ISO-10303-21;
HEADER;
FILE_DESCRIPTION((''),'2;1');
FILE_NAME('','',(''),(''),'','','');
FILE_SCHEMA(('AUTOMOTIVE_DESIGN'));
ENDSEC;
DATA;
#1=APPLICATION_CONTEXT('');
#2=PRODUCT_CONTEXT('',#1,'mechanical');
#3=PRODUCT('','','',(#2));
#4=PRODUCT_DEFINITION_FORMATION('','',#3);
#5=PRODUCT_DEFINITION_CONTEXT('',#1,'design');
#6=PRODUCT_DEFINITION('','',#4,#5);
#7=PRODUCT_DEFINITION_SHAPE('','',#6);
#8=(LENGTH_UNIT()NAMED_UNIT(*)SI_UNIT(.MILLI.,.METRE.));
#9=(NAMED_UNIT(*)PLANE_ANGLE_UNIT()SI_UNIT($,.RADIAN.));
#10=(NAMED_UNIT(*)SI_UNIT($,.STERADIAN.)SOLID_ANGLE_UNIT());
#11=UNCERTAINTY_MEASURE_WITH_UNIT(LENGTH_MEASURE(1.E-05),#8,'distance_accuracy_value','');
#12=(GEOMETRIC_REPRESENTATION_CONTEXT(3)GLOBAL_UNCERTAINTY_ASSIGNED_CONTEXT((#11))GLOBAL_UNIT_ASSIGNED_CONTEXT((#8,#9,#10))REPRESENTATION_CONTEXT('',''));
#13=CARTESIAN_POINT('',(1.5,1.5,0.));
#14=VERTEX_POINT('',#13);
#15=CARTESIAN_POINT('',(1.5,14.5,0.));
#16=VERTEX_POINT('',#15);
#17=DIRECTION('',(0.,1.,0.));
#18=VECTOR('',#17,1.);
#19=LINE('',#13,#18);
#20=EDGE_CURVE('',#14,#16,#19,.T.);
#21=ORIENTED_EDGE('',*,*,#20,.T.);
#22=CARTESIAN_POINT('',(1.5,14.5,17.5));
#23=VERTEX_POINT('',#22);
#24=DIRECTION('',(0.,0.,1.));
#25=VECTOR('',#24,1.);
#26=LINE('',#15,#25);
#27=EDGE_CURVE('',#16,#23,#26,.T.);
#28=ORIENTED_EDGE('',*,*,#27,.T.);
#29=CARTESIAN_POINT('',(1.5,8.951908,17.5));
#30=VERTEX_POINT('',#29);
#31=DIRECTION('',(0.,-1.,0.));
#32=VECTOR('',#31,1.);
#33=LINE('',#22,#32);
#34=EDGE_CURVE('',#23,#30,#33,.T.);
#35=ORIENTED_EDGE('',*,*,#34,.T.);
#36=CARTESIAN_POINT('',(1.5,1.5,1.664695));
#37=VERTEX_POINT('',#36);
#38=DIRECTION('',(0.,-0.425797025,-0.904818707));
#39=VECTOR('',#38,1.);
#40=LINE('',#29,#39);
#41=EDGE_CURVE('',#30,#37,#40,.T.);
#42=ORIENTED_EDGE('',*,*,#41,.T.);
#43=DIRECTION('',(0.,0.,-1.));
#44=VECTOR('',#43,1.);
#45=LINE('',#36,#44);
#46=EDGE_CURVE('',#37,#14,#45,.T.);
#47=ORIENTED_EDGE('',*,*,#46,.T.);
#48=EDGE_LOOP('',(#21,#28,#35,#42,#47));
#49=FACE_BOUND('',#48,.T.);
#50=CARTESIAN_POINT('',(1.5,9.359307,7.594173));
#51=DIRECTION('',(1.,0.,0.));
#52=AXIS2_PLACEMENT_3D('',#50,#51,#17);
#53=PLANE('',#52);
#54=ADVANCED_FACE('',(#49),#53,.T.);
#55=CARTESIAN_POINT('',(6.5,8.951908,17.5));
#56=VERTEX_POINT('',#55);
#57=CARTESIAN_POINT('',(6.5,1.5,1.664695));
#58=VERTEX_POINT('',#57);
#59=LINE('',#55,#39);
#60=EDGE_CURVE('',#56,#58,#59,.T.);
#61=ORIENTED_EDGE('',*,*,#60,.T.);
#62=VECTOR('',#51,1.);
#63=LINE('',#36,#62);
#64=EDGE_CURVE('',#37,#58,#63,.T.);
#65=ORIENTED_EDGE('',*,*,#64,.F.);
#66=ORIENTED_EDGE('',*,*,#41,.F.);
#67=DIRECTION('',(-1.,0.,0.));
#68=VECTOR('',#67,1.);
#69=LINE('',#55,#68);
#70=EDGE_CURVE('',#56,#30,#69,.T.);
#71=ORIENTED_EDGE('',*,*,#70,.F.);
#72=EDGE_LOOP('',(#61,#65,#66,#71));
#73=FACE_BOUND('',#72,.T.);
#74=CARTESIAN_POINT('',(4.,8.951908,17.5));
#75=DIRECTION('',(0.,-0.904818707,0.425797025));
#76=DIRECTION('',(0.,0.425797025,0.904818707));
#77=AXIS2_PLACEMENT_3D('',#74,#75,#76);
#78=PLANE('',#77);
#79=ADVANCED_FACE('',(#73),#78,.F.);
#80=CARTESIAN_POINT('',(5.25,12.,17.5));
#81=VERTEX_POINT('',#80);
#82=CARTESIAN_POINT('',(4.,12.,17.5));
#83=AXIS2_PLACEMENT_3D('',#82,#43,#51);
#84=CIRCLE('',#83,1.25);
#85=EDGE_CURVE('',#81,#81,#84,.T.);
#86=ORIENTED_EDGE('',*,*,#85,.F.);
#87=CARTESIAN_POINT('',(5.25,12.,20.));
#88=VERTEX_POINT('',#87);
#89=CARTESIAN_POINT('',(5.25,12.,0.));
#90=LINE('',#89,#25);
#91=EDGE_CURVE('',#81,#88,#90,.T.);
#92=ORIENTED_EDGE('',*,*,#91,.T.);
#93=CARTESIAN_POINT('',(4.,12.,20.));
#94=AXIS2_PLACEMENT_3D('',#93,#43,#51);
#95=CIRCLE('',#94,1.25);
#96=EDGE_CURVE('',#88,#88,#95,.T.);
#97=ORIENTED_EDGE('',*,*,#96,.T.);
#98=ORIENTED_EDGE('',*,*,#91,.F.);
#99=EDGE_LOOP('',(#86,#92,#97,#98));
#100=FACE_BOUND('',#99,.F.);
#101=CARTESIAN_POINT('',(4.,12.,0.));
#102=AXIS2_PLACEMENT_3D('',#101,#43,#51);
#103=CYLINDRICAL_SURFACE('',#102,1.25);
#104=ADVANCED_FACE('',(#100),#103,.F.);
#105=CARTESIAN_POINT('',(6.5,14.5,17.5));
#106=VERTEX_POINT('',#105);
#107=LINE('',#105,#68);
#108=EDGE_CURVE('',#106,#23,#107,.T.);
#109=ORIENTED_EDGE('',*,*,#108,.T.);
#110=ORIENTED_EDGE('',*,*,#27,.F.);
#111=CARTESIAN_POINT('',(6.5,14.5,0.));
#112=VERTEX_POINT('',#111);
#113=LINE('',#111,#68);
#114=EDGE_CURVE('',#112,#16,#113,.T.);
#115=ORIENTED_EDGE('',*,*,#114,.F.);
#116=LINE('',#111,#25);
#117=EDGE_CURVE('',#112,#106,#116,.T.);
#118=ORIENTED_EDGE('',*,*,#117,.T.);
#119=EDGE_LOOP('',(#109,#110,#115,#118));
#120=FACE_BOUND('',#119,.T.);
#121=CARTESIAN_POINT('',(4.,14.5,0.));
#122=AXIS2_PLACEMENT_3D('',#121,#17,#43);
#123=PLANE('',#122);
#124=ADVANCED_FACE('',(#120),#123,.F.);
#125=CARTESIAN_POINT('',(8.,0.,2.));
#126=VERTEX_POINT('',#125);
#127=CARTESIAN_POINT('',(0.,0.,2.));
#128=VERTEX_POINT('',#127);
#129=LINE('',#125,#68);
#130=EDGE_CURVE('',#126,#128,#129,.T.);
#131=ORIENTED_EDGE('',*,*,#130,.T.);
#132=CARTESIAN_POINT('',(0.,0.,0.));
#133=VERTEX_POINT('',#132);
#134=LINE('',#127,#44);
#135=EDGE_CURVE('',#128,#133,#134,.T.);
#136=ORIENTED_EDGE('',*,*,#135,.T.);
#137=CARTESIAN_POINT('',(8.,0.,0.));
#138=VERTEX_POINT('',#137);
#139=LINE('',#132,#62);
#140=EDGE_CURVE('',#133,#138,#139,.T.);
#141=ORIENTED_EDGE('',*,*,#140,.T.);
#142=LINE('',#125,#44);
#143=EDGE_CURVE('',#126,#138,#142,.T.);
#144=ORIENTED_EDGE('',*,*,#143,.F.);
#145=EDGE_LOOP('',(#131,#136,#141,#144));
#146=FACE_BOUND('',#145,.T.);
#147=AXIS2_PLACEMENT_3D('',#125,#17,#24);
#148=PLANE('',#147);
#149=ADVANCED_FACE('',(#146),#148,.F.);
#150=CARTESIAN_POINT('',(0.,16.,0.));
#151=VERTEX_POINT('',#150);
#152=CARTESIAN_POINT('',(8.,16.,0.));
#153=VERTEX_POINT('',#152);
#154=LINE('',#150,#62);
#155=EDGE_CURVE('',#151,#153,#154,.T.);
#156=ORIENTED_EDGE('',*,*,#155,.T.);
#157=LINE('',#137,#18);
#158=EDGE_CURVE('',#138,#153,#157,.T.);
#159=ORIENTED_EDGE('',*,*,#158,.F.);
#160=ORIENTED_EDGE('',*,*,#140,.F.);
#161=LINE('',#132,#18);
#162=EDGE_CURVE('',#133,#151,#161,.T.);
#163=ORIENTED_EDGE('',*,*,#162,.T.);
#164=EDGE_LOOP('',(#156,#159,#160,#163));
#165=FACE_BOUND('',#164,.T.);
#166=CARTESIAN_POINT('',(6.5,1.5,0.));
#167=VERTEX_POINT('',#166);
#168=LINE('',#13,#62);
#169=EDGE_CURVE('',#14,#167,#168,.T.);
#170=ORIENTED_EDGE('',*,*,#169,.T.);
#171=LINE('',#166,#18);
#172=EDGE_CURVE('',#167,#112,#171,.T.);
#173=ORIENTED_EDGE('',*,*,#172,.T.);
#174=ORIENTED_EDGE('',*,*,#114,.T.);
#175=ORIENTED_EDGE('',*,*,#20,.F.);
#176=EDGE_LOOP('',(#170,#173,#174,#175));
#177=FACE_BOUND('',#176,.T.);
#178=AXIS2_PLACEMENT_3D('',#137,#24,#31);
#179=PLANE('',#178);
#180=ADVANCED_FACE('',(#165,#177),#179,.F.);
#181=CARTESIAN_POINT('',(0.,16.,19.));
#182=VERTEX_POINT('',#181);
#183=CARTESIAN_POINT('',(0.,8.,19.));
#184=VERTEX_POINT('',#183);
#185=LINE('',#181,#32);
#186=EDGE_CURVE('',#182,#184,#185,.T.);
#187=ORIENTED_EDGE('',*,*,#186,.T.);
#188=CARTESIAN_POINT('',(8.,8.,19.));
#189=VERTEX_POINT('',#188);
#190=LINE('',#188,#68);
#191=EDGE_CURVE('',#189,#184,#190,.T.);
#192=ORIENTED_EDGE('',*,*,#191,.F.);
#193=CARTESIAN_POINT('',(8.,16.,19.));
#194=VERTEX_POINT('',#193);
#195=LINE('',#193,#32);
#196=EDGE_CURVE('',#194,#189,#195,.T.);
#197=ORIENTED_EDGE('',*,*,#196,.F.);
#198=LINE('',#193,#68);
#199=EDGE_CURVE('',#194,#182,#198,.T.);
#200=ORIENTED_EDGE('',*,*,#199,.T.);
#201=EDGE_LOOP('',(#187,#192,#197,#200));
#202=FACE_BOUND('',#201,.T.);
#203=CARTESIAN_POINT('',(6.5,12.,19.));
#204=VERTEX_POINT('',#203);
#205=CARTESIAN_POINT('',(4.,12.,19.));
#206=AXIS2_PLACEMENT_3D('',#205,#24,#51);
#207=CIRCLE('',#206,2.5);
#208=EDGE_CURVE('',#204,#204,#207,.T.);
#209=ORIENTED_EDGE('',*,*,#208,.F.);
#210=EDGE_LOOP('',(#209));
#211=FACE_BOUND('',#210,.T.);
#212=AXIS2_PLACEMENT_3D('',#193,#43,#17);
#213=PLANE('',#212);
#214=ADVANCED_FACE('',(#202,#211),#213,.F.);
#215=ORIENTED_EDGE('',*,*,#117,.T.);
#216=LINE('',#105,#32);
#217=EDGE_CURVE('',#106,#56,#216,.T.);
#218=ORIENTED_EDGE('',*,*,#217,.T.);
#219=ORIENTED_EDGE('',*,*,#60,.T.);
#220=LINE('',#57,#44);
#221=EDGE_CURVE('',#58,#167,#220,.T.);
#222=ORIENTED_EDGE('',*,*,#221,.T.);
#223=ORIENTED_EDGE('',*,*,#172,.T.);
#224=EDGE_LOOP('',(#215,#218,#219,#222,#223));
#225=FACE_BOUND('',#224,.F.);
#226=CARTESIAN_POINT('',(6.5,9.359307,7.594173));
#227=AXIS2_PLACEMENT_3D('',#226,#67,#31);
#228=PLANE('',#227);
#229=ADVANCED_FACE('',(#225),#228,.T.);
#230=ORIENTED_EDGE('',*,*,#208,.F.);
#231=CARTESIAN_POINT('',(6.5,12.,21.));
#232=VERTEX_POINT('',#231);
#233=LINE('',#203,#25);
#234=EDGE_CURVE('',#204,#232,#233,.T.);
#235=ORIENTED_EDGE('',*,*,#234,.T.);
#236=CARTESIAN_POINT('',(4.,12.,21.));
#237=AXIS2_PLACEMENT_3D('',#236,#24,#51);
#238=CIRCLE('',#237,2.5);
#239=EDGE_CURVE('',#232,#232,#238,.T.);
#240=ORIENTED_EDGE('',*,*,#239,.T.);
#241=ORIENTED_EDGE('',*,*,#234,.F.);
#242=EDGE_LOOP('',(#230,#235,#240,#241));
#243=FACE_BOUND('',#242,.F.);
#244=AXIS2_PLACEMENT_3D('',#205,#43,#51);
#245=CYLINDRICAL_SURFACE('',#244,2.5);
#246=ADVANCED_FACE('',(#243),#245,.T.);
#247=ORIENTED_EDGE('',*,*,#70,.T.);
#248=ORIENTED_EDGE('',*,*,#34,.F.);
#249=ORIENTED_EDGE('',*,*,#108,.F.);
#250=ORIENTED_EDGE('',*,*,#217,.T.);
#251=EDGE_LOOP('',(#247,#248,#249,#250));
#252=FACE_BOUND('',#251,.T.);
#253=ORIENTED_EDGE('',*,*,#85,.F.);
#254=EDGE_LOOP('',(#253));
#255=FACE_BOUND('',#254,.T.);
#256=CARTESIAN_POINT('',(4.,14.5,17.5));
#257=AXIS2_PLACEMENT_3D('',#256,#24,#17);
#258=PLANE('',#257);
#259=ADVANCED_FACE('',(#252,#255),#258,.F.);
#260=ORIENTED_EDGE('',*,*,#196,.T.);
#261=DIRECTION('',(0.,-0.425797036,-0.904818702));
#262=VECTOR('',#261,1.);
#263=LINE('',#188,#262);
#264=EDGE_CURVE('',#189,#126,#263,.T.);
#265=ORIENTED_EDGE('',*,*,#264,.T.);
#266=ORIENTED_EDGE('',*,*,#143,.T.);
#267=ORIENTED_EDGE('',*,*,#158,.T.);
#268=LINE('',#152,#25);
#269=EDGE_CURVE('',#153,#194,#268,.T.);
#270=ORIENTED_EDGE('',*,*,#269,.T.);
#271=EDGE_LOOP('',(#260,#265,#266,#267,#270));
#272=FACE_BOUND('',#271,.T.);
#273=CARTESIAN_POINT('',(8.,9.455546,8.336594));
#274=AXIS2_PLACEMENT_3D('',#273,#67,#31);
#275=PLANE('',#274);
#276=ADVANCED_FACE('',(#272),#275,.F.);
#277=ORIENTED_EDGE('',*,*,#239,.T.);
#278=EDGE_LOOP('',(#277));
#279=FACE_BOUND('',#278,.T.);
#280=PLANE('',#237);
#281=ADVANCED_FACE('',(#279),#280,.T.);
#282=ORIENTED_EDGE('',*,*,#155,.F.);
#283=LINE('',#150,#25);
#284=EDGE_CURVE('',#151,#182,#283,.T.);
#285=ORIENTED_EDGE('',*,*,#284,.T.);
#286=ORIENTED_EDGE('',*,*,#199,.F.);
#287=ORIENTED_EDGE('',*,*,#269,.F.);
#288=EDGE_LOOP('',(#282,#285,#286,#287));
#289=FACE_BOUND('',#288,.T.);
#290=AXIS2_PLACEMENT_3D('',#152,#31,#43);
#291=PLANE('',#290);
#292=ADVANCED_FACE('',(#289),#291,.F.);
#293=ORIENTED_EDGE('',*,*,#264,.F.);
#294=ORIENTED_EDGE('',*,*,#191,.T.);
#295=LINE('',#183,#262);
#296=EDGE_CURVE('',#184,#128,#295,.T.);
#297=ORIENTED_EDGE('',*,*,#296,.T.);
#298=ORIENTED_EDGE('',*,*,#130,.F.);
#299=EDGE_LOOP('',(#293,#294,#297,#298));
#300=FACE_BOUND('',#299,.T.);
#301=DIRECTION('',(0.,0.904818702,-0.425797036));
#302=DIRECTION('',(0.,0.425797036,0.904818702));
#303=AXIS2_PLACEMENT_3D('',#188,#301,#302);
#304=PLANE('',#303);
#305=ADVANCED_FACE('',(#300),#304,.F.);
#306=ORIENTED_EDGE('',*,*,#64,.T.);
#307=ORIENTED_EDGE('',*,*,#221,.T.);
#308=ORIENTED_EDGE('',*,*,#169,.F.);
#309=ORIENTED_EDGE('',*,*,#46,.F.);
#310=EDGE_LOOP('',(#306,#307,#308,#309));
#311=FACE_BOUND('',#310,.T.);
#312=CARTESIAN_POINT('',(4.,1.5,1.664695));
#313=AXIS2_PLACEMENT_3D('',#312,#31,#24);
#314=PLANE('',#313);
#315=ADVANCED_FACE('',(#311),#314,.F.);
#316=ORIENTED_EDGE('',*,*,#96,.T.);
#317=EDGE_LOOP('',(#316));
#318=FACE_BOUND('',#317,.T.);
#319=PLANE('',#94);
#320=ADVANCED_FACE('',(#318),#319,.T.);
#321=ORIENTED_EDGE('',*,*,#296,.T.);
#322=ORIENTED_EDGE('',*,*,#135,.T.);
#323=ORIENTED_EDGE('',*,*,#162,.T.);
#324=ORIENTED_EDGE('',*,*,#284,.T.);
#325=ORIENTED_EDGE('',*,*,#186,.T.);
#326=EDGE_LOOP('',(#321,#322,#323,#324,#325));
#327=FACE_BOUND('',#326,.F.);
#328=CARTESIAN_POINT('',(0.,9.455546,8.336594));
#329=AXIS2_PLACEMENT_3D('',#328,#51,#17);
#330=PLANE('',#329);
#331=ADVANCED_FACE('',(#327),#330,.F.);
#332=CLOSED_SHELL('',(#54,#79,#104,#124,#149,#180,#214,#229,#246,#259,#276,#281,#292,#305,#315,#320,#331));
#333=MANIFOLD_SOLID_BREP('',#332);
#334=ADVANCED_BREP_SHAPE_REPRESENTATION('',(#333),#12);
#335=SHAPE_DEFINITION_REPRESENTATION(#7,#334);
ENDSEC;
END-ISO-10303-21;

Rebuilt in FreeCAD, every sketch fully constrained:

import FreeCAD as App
import Part
import Sketcher
from FreeCAD import Vector
Q = App.Units.Quantity

doc = App.newDocument("Part")
body = doc.addObject("PartDesign::Body", "Body")

# Sketch on YZ plane
sketch1 = doc.addObject("Sketcher::SketchObject", "Sketch")
body.addObject(sketch1)
sketch1.AttachmentSupport = (doc.YZ_Plane, [""])
sketch1.MapMode = "FlatFace"
sketch1.addGeometry([
    Part.LineSegment(Vector(0, 2, 0), Vector(0, 0, 0)),  # 0
    Part.LineSegment(Vector(0, 0, 0), Vector(16, 0, 0)),  # 1
    Part.LineSegment(Vector(16, 0, 0), Vector(16, 19, 0)),  # 2
    Part.LineSegment(Vector(16, 19, 0), Vector(8, 19, 0)),  # 3
    Part.LineSegment(Vector(8, 19, 0), Vector(0, 2, 0)),  # 4
], False)
sketch1.addConstraint([
    Sketcher.Constraint("Coincident", 0, 2, 1, 1),
    Sketcher.Constraint("Coincident", 1, 2, 2, 1),
    Sketcher.Constraint("Coincident", 2, 2, 3, 1),
    Sketcher.Constraint("Coincident", 3, 2, 4, 1),
    Sketcher.Constraint("Coincident", 4, 2, 0, 1),
    Sketcher.Constraint("Vertical", 0),
    Sketcher.Constraint("Horizontal", 1),
    Sketcher.Constraint("Vertical", 2),
    Sketcher.Constraint("Horizontal", 3),
    Sketcher.Constraint("Coincident", 0, 2, -1, 1),
    Sketcher.Constraint("DistanceX", 1, 1, 1, 2, Q("16 mm")),
    Sketcher.Constraint("DistanceX", 3, 2, 3, 1, Q("8 mm")),
    Sketcher.Constraint("DistanceY", 0, 2, 0, 1, Q("2 mm")),
    Sketcher.Constraint("DistanceY", 2, 1, 2, 2, Q("19 mm")),
])
pad1 = doc.addObject("PartDesign::Pad", "Pad")
body.addObject(pad1)
pad1.Profile = sketch1
pad1.Length = 4

# Sketch on YZ plane
sketch2 = doc.addObject("Sketcher::SketchObject", "Sketch001")
body.addObject(sketch2)
sketch2.AttachmentSupport = (doc.YZ_Plane, [""])
sketch2.MapMode = "FlatFace"
sketch2.AttachmentOffset = App.Placement(Vector(0, 0, 4), App.Rotation())
sketch2.addGeometry([
    Part.LineSegment(Vector(14.5, 0, 0), Vector(14.5, 17.5, 0)),  # 0
    Part.LineSegment(Vector(14.5, 17.5, 0), Vector(9, 17.5, 0)),  # 1
    Part.LineSegment(Vector(9, 17.5, 0), Vector(1.5, 1.7, 0)),  # 2
    Part.LineSegment(Vector(1.5, 1.7, 0), Vector(1.5, 0, 0)),  # 3
    Part.LineSegment(Vector(1.5, 0, 0), Vector(14.5, 0, 0)),  # 4
], False)
sketch2.addConstraint([
    Sketcher.Constraint("Coincident", 0, 2, 1, 1),
    Sketcher.Constraint("Coincident", 1, 2, 2, 1),
    Sketcher.Constraint("Coincident", 2, 2, 3, 1),
    Sketcher.Constraint("Coincident", 3, 2, 4, 1),
    Sketcher.Constraint("Coincident", 4, 2, 0, 1),
    Sketcher.Constraint("Vertical", 0),
    Sketcher.Constraint("Horizontal", 1),
    Sketcher.Constraint("Vertical", 3),
    Sketcher.Constraint("Horizontal", 4),
    Sketcher.Constraint("PointOnObject", 3, 2, -1),
    Sketcher.Constraint("DistanceX", 4, 1, 4, 2, Q("13 mm")),
    Sketcher.Constraint("DistanceY", 0, 1, 0, 2, Q("17.5 mm")),
    Sketcher.Constraint("DistanceX", -1, 1, 0, 2, Q("14.5 mm")),
    Sketcher.Constraint("Distance", 2, Q("17.50108 mm")),
    Sketcher.Constraint("DistanceX", 1, 2, 1, 1, Q("5.548092 mm")),
])
pocket1 = doc.addObject("PartDesign::Pocket", "Pocket")
body.addObject(pocket1)
pocket1.Profile = sketch2
pocket1.Length = 2.5
body2 = doc.addObject("PartDesign::Body", "Body001")
doc.recompute()

body2.BaseFeature = body
doc.recompute()

mirroring = doc.addObject("Part::Mirroring", "Mirroring")
mirroring.Source = body
mirroring.Base = Vector(4, 9.86239, 10.544939)
mirroring.Normal = Vector(1, 0, 0)
body3 = doc.addObject("PartDesign::Body", "Body002")
body3.BaseFeature = mirroring
boolean = doc.addObject("PartDesign::Boolean", "Boolean")
body2.addObject(boolean)
boolean.Type = "Fuse"
boolean.addObjects([body3])
doc.recompute()

# Sketch on XY plane
sketch3 = doc.addObject("Sketcher::SketchObject", "Sketch002")
body2.addObject(sketch3)
sketch3.AttachmentSupport = (doc.getObject("XY_Plane001"), [""])
sketch3.MapMode = "FlatFace"
sketch3.AttachmentOffset = App.Placement(Vector(0, 0, 19), App.Rotation())
sketch3.addGeometry(Part.Circle(Vector(4, 12, 0), Vector(0, 0, 1), 2.5), False)
sketch3.addConstraint([
    Sketcher.Constraint("Diameter", 0, Q("5 mm")),
    Sketcher.Constraint("DistanceX", -1, 1, 0, 3, Q("4 mm")),
    Sketcher.Constraint("DistanceY", -1, 1, 0, 3, Q("12 mm")),
])
pad2 = doc.addObject("PartDesign::Pad", "Pad001")
body2.addObject(pad2)
pad2.Profile = sketch3
pad2.Length = 2

# Sketch on XY plane
sketch4 = doc.addObject("Sketcher::SketchObject", "Sketch003")
body2.addObject(sketch4)
sketch4.AttachmentSupport = (doc.getObject("XY_Plane001"), [""])
sketch4.MapMode = "FlatFace"
sketch4.addGeometry(Part.Circle(Vector(4, 12, 0), Vector(0, 0, 1), 1.2), False)
sketch4.addConstraint([
    Sketcher.Constraint("Diameter", 0, Q("2.5 mm")),
    Sketcher.Constraint("DistanceX", -1, 1, 0, 3, Q("4 mm")),
    Sketcher.Constraint("DistanceY", -1, 1, 0, 3, Q("12 mm")),
])
pocket2 = doc.addObject("PartDesign::Pocket", "Pocket001")
body2.addObject(pocket2)
pocket2.Profile = sketch4
pocket2.Length = 20
pocket2.Reversed = True
mirroring.Visibility = False

doc.recompute()
